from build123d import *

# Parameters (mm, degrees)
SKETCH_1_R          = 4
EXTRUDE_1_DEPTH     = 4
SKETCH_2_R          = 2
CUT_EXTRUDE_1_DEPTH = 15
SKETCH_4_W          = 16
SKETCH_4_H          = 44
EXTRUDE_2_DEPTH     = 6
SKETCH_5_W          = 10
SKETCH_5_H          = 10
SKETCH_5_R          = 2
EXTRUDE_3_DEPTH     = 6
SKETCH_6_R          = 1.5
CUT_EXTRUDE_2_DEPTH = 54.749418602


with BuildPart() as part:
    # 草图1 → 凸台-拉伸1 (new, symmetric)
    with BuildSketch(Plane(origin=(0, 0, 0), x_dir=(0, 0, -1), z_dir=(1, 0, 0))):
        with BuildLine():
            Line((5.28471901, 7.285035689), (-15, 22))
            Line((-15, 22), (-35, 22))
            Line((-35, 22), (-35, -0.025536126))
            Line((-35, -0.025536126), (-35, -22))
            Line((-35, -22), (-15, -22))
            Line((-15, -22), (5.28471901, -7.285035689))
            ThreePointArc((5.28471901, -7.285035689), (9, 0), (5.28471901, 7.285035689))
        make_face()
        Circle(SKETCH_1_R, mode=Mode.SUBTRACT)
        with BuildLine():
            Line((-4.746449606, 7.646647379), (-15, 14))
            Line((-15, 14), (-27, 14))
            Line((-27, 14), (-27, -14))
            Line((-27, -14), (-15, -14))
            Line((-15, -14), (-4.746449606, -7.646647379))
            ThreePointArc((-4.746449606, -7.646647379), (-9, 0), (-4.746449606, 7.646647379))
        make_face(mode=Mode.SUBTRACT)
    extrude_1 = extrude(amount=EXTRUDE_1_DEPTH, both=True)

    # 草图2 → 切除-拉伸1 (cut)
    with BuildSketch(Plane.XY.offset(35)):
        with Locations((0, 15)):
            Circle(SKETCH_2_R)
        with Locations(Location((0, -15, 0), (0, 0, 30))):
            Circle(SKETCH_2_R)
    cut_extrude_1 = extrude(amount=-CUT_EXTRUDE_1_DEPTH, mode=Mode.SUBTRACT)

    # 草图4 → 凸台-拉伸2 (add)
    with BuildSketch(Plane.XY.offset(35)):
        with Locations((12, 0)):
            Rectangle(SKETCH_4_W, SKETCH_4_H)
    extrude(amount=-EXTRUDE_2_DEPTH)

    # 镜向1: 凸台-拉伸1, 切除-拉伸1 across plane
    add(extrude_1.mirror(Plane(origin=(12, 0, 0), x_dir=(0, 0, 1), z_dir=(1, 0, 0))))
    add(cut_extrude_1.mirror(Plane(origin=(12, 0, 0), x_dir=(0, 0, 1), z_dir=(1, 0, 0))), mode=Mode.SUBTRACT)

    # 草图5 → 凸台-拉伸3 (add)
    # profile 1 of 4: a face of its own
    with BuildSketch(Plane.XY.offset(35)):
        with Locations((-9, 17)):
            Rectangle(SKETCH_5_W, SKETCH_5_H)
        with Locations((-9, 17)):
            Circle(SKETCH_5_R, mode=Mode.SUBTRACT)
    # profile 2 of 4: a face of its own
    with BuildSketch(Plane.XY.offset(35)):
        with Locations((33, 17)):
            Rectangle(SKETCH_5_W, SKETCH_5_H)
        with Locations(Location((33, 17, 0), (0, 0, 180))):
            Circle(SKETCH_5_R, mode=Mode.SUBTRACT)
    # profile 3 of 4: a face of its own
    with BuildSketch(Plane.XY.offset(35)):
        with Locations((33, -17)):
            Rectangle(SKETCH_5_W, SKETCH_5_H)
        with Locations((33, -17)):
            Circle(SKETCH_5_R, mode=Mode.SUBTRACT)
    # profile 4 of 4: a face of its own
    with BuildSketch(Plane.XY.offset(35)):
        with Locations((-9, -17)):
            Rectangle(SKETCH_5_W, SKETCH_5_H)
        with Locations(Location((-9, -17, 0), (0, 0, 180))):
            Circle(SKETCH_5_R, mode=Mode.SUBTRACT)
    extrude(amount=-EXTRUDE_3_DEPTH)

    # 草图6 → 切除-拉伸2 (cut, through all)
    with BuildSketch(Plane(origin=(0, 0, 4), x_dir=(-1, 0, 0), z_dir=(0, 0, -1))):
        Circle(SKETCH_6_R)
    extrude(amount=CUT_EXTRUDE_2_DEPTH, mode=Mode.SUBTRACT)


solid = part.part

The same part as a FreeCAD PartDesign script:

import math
import FreeCAD as App
import Part
import Sketcher

V = App.Vector

doc = App.newDocument("Part")
body = doc.addObject("PartDesign::Body", "Body")

# Sketch on YZ plane
sketch1 = doc.addObject("Sketcher::SketchObject", "Sketch")
body.addObject(sketch1)
sketch1.AttachmentSupport = (doc.YZ_Plane, [""])
sketch1.MapMode = "FlatFace"
sketch1.addGeometry(Part.LineSegment(V(7.3, -5.3, 0), V(22, 15, 0)), False)
sketch1.addGeometry(Part.LineSegment(V(22, 15, 0), V(22, 35, 0)), False)
sketch1.addGeometry(Part.LineSegment(V(22, 35, 0), V(-22, 35, 0)), False)
sketch1.addGeometry(Part.LineSegment(V(-22, 35, 0), V(-22, 15, 0)), False)
sketch1.addGeometry(Part.LineSegment(V(-22, 15, 0), V(-7.3, -5.3, 0)), False)
sketch1.addGeometry(Part.ArcOfCircle(Part.Circle(V(0, 0, 0), V(0, 0, 1), 9), math.radians(-144), math.radians(-36)), False)
sketch1.addGeometry(Part.LineSegment(V(14, 15, 0), V(7.6, 4.7, 0)), False)
sketch1.addGeometry(Part.ArcOfCircle(Part.Circle(V(0, 0, 0), V(0, 0, 1), 9), math.radians(32), math.radians(148)), False)
sketch1.addGeometry(Part.LineSegment(V(-7.6, 4.7, 0), V(-14, 15, 0)), False)
sketch1.addGeometry(Part.LineSegment(V(-14, 15, 0), V(-14, 27, 0)), False)
sketch1.addGeometry(Part.LineSegment(V(-14, 27, 0), V(14, 27, 0)), False)
sketch1.addGeometry(Part.LineSegment(V(14, 27, 0), V(14, 15, 0)), False)
sketch1.addGeometry(Part.Circle(V(0, 0, 0), V(0, 0, 1), 4), False)
sketch1.addConstraint(Sketcher.Constraint("Coincident", 0, 2, 1, 1))
sketch1.addConstraint(Sketcher.Constraint("Coincident", 1, 2, 2, 1))
sketch1.addConstraint(Sketcher.Constraint("Coincident", 2, 2, 3, 1))
sketch1.addConstraint(Sketcher.Constraint("Coincident", 3, 2, 4, 1))
sketch1.addConstraint(Sketcher.Constraint("Tangent", 4, 2, 5, 1))
sketch1.addConstraint(Sketcher.Constraint("Tangent", 5, 2, 0, 1))
sketch1.addConstraint(Sketcher.Constraint("Coincident", 6, 2, 7, 1))
sketch1.addConstraint(Sketcher.Constraint("Coincident", 7, 2, 8, 1))
sketch1.addConstraint(Sketcher.Constraint("Coincident", 8, 2, 9, 1))
sketch1.addConstraint(Sketcher.Constraint("Coincident", 9, 2, 10, 1))
sketch1.addConstraint(Sketcher.Constraint("Coincident", 10, 2, 11, 1))
sketch1.addConstraint(Sketcher.Constraint("Coincident", 11, 2, 6, 1))
sketch1.addConstraint(Sketcher.Constraint("Vertical", 1))
sketch1.addConstraint(Sketcher.Constraint("Horizontal", 2))
sketch1.addConstraint(Sketcher.Constraint("Vertical", 3))
sketch1.addConstraint(Sketcher.Constraint("Vertical", 9))
sketch1.addConstraint(Sketcher.Constraint("Horizontal", 10))
sketch1.addConstraint(Sketcher.Constraint("Vertical", 11))
sketch1.addConstraint(Sketcher.Constraint("Coincident", 5, 3, -1, 1))
sketch1.addConstraint(Sketcher.Constraint("Coincident", 7, 3, -1, 1))
sketch1.addConstraint(Sketcher.Constraint("Coincident", 12, 3, -1, 1))
sketch1.addConstraint(Sketcher.Constraint("Equal", 5, 7))
sketch1.addConstraint(Sketcher.Constraint("Symmetric", 0, 2, 3, 2, -2))
sketch1.addConstraint(Sketcher.Constraint("Symmetric", 8, 2, 11, 2, -2))
sketch1.addConstraint(Sketcher.Constraint("Horizontal", 6, 2, 7, 2))
sketch1.addConstraint(Sketcher.Constraint("Horizontal", 3, 2, 8, 2))
sketch1.addConstraint(Sketcher.Constraint("Diameter", 12, 8.0))
sketch1.addConstraint(Sketcher.Constraint("Radius", 5, 9.0))
sketch1.addConstraint(Sketcher.Constraint("DistanceX", 2, 2, 2, 1, 44.0))
sketch1.addConstraint(Sketcher.Constraint("DistanceX", 10, 1, 10, 2, 28.0))
sketch1.addConstraint(Sketcher.Constraint("DistanceY", 1, 1, 1, 2, 20.0))
sketch1.addConstraint(Sketcher.Constraint("DistanceY", 9, 1, 9, 2, 12.0))
sketch1.addConstraint(Sketcher.Constraint("DistanceY", -1, 1, 0, 2, 15.0))
sketch1.addConstraint(Sketcher.Constraint("DistanceY", -1, 1, 6, 2, 4.74645))
pad1 = doc.addObject("PartDesign::Pad", "Pad")
body.addObject(pad1)
pad1.Profile = sketch1
pad1.Length = 8
pad1.Midplane = True

# Sketch on XY plane
sketch2 = doc.addObject("Sketcher::SketchObject", "Sketch001")
body.addObject(sketch2)
sketch2.AttachmentSupport = (doc.XY_Plane, [""])
sketch2.MapMode = "FlatFace"
sketch2.AttachmentOffset = App.Placement(V(0, 0, 35), App.Rotation())
sketch2.addGeometry(Part.Circle(V(0, 15, 0), V(0, 0, 1), 2), False)
sketch2.addGeometry(Part.Circle(V(0, -15, 0), V(0, 0, 1), 2), False)
sketch2.addConstraint(Sketcher.Constraint("Equal", 0, 1))
sketch2.addConstraint(Sketcher.Constraint("Symmetric", 0, 3, 1, 3, -1, 1))
sketch2.addConstraint(Sketcher.Constraint("PointOnObject", 0, 3, -2))
sketch2.addConstraint(Sketcher.Constraint("Diameter", 0, 4.0))
sketch2.addConstraint(Sketcher.Constraint("DistanceY", -1, 1, 0, 3, 15.0))
pocket1 = doc.addObject("PartDesign::Pocket", "Pocket")
body.addObject(pocket1)
pocket1.Profile = sketch2
pocket1.Length = 15

# Sketch on XY plane
sketch3 = doc.addObject("Sketcher::SketchObject", "Sketch002")
body.addObject(sketch3)
sketch3.AttachmentSupport = (doc.XY_Plane, [""])
sketch3.MapMode = "FlatFace"
sketch3.AttachmentOffset = App.Placement(V(0, 0, 35), App.Rotation())
sketch3.addGeometry(Part.LineSegment(V(4, 22, 0), V(4, -22, 0)), False)
sketch3.addGeometry(Part.LineSegment(V(4, -22, 0), V(20, -22, 0)), False)
sketch3.addGeometry(Part.LineSegment(V(20, -22, 0), V(20, 22, 0)), False)
sketch3.addGeometry(Part.LineSegment(V(20, 22, 0), V(4, 22, 0)), False)
sketch3.addConstraint(Sketcher.Constraint("Coincident", 0, 2, 1, 1))
sketch3.addConstraint(Sketcher.Constraint("Coincident", 1, 2, 2, 1))
sketch3.addConstraint(Sketcher.Constraint("Coincident", 2, 2, 3, 1))
sketch3.addConstraint(Sketcher.Constraint("Coincident", 3, 2, 0, 1))
sketch3.addConstraint(Sketcher.Constraint("Vertical", 0))
sketch3.addConstraint(Sketcher.Constraint("Horizontal", 1))
sketch3.addConstraint(Sketcher.Constraint("Vertical", 2))
sketch3.addConstraint(Sketcher.Constraint("Horizontal", 3))
sketch3.addConstraint(Sketcher.Constraint("DistanceX", 1, 1, 1, 2, 16.0))
sketch3.addConstraint(Sketcher.Constraint("DistanceY", 0, 2, 0, 1, 44.0))
sketch3.addConstraint(Sketcher.Constraint("DistanceX", -1, 1, 0, 2, 4.0))
sketch3.addConstraint(Sketcher.Constraint("DistanceY", 0, 2, -1, 1, 22.0))
pad2 = doc.addObject("PartDesign::Pad", "Pad001")
body.addObject(pad2)
pad2.Profile = sketch3
pad2.Length = 6
pad2.Reversed = True
doc.recompute()

datumplane = doc.addObject("PartDesign::Plane", "DatumPlane")
body.addObject(datumplane)
datumplane.AttachmentSupport = (doc.YZ_Plane, [""])
datumplane.MapMode = "FlatFace"
datumplane.AttachmentOffset = App.Placement(V(0, 0, 12), App.Rotation())
mirrored = doc.addObject("PartDesign::Mirrored", "Mirrored")
body.addObject(mirrored)
mirrored.Originals = [pad1, pocket1]
mirrored.MirrorPlane = (datumplane, [""])
body.Tip = mirrored

# Sketch on XY plane
sketch4 = doc.addObject("Sketcher::SketchObject", "Sketch003")
body.addObject(sketch4)
sketch4.AttachmentSupport = (doc.XY_Plane, [""])
sketch4.MapMode = "FlatFace"
sketch4.AttachmentOffset = App.Placement(V(0, 0, 35), App.Rotation())
sketch4.addGeometry(Part.LineSegment(V(-14, 22, 0), V(-14, 12, 0)), False)
sketch4.addGeometry(Part.LineSegment(V(-14, 12, 0), V(-4, 12, 0)), False)
sketch4.addGeometry(Part.LineSegment(V(-4, 12, 0), V(-4, 22, 0)), False)
sketch4.addGeometry(Part.LineSegment(V(-4, 22, 0), V(-14, 22, 0)), False)
sketch4.addGeometry(Part.Circle(V(-9, 17, 0), V(0, 0, 1), 2), False)
sketch4.addGeometry(Part.LineSegment(V(28, 22, 0), V(28, 12, 0)), False)
sketch4.addGeometry(Part.LineSegment(V(28, 12, 0), V(38, 12, 0)), False)
sketch4.addGeometry(Part.LineSegment(V(38, 12, 0), V(38, 22, 0)), False)
sketch4.addGeometry(Part.LineSegment(V(38, 22, 0), V(28, 22, 0)), False)
sketch4.addGeometry(Part.Circle(V(33, 17, 0), V(0, 0, 1), 2), False)
sketch4.addGeometry(Part.LineSegment(V(28, -12, 0), V(28, -22, 0)), False)
sketch4.addGeometry(Part.LineSegment(V(28, -22, 0), V(38, -22, 0)), False)
sketch4.addGeometry(Part.LineSegment(V(38, -22, 0), V(38, -12, 0)), False)
sketch4.addGeometry(Part.LineSegment(V(38, -12, 0), V(28, -12, 0)), False)
sketch4.addGeometry(Part.Circle(V(33, -17, 0), V(0, 0, 1), 2), False)
sketch4.addGeometry(Part.LineSegment(V(-14, -12, 0), V(-14, -22, 0)), False)
sketch4.addGeometry(Part.LineSegment(V(-14, -22, 0), V(-4, -22, 0)), False)
sketch4.addGeometry(Part.LineSegment(V(-4, -22, 0), V(-4, -12, 0)), False)
sketch4.addGeometry(Part.LineSegment(V(-4, -12, 0), V(-14, -12, 0)), False)
sketch4.addGeometry(Part.Circle(V(-9, -17, 0), V(0, 0, 1), 2), False)
sketch4.addConstraint(Sketcher.Constraint("Coincident", 0, 2, 1, 1))
sketch4.addConstraint(Sketcher.Constraint("Coincident", 1, 2, 2, 1))
sketch4.addConstraint(Sketcher.Constraint("Coincident", 2, 2, 3, 1))
sketch4.addConstraint(Sketcher.Constraint("Coincident", 3, 2, 0, 1))
sketch4.addConstraint(Sketcher.Constraint("Coincident", 5, 2, 6, 1))
sketch4.addConstraint(Sketcher.Constraint("Coincident", 6, 2, 7, 1))
sketch4.addConstraint(Sketcher.Constraint("Coincident", 7, 2, 8, 1))
sketch4.addConstraint(Sketcher.Constraint("Coincident", 8, 2, 5, 1))
sketch4.addConstraint(Sketcher.Constraint("Coincident", 10, 2, 11, 1))
sketch4.addConstraint(Sketcher.Constraint("Coincident", 11, 2, 12, 1))
sketch4.addConstraint(Sketcher.Constraint("Coincident", 12, 2, 13, 1))
sketch4.addConstraint(Sketcher.Constraint("Coincident", 13, 2, 10, 1))
sketch4.addConstraint(Sketcher.Constraint("Coincident", 15, 2, 16, 1))
sketch4.addConstraint(Sketcher.Constraint("Coincident", 16, 2, 17, 1))
sketch4.addConstraint(Sketcher.Constraint("Coincident", 17, 2, 18, 1))
sketch4.addConstraint(Sketcher.Constraint("Coincident", 18, 2, 15, 1))
sketch4.addConstraint(Sketcher.Constraint("Vertical", 0))
sketch4.addConstraint(Sketcher.Constraint("Horizontal", 1))
sketch4.addConstraint(Sketcher.Constraint("Vertical", 2))
sketch4.addConstraint(Sketcher.Constraint("Horizontal", 3))
sketch4.addConstraint(Sketcher.Constraint("Vertical", 5))
sketch4.addConstraint(Sketcher.Constraint("Horizontal", 6))
sketch4.addConstraint(Sketcher.Constraint("Vertical", 7))
sketch4.addConstraint(Sketcher.Constraint("Horizontal", 8))
sketch4.addConstraint(Sketcher.Constraint("Vertical", 10))
sketch4.addConstraint(Sketcher.Constraint("Horizontal", 11))
sketch4.addConstraint(Sketcher.Constraint("Vertical", 12))
sketch4.addConstraint(Sketcher.Constraint("Horizontal", 13))
sketch4.addConstraint(Sketcher.Constraint("Vertical", 15))
sketch4.addConstraint(Sketcher.Constraint("Horizontal", 16))
sketch4.addConstraint(Sketcher.Constraint("Vertical", 17))
sketch4.addConstraint(Sketcher.Constraint("Horizontal", 18))
sketch4.addConstraint(Sketcher.Constraint("Equal", 4, 9))
sketch4.addConstraint(Sketcher.Constraint("Equal", 9, 14))
sketch4.addConstraint(Sketcher.Constraint("Equal", 14, 19))
sketch4.addConstraint(Sketcher.Constraint("Symmetric", 9, 3, 14, 3, -1))
sketch4.addConstraint(Sketcher.Constraint("Symmetric", 4, 3, 19, 3, -1))
sketch4.addConstraint(Sketcher.Constraint("Symmetric", 8, 2, 10, 2, -1))
sketch4.addConstraint(Sketcher.Constraint("Symmetric", 6, 2, 12, 2, -1))
sketch4.addConstraint(Sketcher.Constraint("Symmetric", 3, 2, 15, 2, -1))
sketch4.addConstraint(Sketcher.Constraint("Symmetric", 1, 2, 17, 2, -1))
sketch4.addConstraint(Sketcher.Constraint("Horizontal", 4, 3, 9, 3))
sketch4.addConstraint(Sketcher.Constraint("Horizontal", 1, 2, 5, 2))
sketch4.addConstraint(Sketcher.Constraint("Horizontal", 3, 2, 7, 2))
sketch4.addConstraint(Sketcher.Constraint("Equal", 3, 6))
sketch4.addConstraint(Sketcher.Constraint("Equal", 18, 0))
sketch4.addConstraint(Sketcher.Constraint("Diameter", 4, 4.0))
sketch4.addConstraint(Sketcher.Constraint("DistanceX", 1, 1, 1, 2, 10.0))
sketch4.addConstraint(Sketcher.Constraint("DistanceX", 4, 3, -1, 1, 9.0))
sketch4.addConstraint(Sketcher.Constraint("DistanceY", -1, 1, 4, 3, 17.0))
sketch4.addConstraint(Sketcher.Constraint("DistanceX", -1, 1, 9, 3, 33.0))
sketch4.addConstraint(Sketcher.Constraint("DistanceX", 0, 2, -1, 1, 14.0))
sketch4.addConstraint(Sketcher.Constraint("DistanceY", -1, 1, 0, 2, 12.0))
sketch4.addConstraint(Sketcher.Constraint("DistanceX", -1, 1, 5, 2, 28.0))
pad3 = doc.addObject("PartDesign::Pad", "Pad002")
body.addObject(pad3)
pad3.Profile = sketch4
pad3.Length = 6
pad3.Reversed = True

# Sketch on XY plane
sketch5 = doc.addObject("Sketcher::SketchObject", "Sketch004")
body.addObject(sketch5)
sketch5.AttachmentSupport = (doc.XY_Plane, [""])
sketch5.MapMode = "FlatFace"
sketch5.AttachmentOffset = App.Placement(V(0, 0, 4), App.Rotation())
sketch5.addGeometry(Part.Circle(V(0, 0, 0), V(0, 0, 1), 1.5), False)
sketch5.addConstraint(Sketcher.Constraint("Coincident", 0, 3, -1, 1))
sketch5.addConstraint(Sketcher.Constraint("Diameter", 0, 3.0))
pocket2 = doc.addObject("PartDesign::Pocket", "Pocket001")
body.addObject(pocket2)
pocket2.Profile = sketch5
pocket2.Type = "ThroughAll"

doc.recompute()
